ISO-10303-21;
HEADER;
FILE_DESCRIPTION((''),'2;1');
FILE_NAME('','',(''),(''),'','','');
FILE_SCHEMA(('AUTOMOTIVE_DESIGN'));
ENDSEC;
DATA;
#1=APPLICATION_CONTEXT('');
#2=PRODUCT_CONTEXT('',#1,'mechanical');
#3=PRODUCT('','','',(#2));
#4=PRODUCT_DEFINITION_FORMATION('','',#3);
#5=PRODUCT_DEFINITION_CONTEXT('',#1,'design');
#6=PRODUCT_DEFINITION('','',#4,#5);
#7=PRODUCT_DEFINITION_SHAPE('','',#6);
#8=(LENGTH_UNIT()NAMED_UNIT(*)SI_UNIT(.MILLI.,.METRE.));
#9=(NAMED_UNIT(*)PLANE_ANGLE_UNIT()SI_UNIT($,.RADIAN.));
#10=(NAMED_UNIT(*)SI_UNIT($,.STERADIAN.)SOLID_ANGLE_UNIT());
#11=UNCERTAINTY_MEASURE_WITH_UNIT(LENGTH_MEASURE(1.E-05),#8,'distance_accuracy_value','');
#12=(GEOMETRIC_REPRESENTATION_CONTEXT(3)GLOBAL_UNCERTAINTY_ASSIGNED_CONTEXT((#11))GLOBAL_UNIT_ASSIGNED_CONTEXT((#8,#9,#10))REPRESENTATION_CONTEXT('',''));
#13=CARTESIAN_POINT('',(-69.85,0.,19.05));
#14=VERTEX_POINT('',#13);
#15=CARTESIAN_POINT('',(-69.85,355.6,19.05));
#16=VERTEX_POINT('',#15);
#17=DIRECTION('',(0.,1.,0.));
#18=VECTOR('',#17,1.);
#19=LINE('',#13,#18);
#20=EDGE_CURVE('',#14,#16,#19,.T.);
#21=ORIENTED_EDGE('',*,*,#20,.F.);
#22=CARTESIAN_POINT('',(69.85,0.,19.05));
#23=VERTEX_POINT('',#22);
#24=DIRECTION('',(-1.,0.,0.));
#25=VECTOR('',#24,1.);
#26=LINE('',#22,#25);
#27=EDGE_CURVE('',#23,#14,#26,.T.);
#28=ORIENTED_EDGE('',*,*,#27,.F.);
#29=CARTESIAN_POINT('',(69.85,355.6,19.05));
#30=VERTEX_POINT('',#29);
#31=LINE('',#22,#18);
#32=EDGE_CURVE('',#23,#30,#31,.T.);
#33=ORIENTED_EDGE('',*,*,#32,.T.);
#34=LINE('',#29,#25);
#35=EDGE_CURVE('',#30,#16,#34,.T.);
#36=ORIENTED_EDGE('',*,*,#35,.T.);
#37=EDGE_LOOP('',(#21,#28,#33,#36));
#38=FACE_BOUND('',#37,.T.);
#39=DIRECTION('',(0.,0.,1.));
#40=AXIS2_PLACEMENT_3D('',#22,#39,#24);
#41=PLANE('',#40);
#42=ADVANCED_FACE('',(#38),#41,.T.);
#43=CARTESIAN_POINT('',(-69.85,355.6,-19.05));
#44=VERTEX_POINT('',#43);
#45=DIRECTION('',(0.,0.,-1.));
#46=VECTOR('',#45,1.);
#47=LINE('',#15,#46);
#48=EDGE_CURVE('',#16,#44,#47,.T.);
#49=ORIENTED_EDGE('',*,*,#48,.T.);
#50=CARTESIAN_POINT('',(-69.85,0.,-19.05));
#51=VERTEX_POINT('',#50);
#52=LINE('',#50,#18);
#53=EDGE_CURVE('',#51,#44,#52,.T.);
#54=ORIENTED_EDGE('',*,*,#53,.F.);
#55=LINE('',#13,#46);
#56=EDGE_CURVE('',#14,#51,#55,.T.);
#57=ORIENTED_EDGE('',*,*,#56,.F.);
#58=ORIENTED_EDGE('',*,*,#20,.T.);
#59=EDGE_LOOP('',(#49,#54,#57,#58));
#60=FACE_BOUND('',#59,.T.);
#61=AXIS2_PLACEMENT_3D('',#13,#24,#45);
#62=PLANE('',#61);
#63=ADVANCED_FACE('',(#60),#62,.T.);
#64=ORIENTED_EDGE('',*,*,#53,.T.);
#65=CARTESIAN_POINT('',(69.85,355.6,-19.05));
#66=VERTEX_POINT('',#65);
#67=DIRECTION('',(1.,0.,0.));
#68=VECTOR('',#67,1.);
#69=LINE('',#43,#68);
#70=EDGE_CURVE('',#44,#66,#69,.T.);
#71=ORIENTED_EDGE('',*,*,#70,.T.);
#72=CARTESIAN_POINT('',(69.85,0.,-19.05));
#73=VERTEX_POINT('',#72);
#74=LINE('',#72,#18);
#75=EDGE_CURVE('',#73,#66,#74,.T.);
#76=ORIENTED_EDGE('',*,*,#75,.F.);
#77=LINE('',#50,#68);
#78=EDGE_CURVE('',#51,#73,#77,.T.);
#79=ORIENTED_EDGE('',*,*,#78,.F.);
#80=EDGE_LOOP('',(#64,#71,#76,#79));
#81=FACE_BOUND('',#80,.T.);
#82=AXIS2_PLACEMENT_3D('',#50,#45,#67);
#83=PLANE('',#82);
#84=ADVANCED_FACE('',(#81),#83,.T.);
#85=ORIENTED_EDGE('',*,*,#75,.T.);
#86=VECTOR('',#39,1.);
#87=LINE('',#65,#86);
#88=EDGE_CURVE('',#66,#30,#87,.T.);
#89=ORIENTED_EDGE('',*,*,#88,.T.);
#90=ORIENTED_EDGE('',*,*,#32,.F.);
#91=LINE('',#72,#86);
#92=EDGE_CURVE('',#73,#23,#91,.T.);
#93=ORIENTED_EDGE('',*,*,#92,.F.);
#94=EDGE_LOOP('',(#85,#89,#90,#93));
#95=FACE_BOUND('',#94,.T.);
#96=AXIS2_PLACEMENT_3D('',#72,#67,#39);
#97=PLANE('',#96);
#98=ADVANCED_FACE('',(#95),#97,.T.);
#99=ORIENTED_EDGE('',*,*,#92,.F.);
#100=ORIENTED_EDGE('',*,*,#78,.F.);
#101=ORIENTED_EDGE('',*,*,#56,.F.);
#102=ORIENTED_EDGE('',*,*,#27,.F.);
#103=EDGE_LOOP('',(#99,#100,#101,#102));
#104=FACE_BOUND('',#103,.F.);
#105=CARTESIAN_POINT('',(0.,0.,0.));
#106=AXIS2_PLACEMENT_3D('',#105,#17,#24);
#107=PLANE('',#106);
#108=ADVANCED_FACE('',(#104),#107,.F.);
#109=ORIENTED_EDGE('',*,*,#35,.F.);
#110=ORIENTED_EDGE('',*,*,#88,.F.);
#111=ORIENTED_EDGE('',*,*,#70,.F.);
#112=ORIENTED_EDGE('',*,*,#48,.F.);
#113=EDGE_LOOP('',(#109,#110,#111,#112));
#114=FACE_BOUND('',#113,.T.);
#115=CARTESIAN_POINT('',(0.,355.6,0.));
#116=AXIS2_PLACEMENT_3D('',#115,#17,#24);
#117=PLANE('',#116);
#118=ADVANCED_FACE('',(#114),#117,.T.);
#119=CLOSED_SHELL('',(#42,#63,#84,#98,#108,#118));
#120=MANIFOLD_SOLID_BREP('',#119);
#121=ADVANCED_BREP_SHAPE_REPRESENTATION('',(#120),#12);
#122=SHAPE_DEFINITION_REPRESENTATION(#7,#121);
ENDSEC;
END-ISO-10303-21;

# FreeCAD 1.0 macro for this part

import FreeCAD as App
import Part
import Sketcher
from FreeCAD import Vector
Q = App.Units.Quantity

doc = App.newDocument("Part")
body = doc.addObject("PartDesign::Body", "Body")

# Sketch on XZ plane
sketch1 = doc.addObject("Sketcher::SketchObject", "Sketch")
body.addObject(sketch1)
sketch1.AttachmentSupport = (doc.XZ_Plane, [""])
sketch1.MapMode = "FlatFace"
sketch1.addGeometry([
    Part.LineSegment(Vector(-70, 19, 0), Vector(70, 19, 0)),
    Part.LineSegment(Vector(70, 19, 0), Vector(70, -19, 0)),
    Part.LineSegment(Vector(70, -19, 0), Vector(-70, -19, 0)),
    Part.LineSegment(Vector(-70, -19, 0), Vector(-70, 19, 0)),
], False)
sketch1.addConstraint([
    Sketcher.Constraint("Coincident", 0, 2, 1, 1),
    Sketcher.Constraint("Coincident", 1, 2, 2, 1),
    Sketcher.Constraint("Coincident", 2, 2, 3, 1),
    Sketcher.Constraint("Coincident", 3, 2, 0, 1),
    Sketcher.Constraint("Horizontal", 0),
    Sketcher.Constraint("Vertical", 1),
    Sketcher.Constraint("Horizontal", 2),
    Sketcher.Constraint("Vertical", 3),
    Sketcher.Constraint("Symmetric", 0, 2, 2, 2, -1, 1),
    Sketcher.Constraint("DistanceX", 0, 1, 0, 2, Q("5.5 in")),
    Sketcher.Constraint("DistanceY", 1, 2, 1, 1, Q("1.5 in")),
])
pad1 = doc.addObject("PartDesign::Pad", "Pad")
body.addObject(pad1)
pad1.Profile = sketch1
pad1.Length = Q("14 in")
pad1.Reversed = True

doc.recompute()
